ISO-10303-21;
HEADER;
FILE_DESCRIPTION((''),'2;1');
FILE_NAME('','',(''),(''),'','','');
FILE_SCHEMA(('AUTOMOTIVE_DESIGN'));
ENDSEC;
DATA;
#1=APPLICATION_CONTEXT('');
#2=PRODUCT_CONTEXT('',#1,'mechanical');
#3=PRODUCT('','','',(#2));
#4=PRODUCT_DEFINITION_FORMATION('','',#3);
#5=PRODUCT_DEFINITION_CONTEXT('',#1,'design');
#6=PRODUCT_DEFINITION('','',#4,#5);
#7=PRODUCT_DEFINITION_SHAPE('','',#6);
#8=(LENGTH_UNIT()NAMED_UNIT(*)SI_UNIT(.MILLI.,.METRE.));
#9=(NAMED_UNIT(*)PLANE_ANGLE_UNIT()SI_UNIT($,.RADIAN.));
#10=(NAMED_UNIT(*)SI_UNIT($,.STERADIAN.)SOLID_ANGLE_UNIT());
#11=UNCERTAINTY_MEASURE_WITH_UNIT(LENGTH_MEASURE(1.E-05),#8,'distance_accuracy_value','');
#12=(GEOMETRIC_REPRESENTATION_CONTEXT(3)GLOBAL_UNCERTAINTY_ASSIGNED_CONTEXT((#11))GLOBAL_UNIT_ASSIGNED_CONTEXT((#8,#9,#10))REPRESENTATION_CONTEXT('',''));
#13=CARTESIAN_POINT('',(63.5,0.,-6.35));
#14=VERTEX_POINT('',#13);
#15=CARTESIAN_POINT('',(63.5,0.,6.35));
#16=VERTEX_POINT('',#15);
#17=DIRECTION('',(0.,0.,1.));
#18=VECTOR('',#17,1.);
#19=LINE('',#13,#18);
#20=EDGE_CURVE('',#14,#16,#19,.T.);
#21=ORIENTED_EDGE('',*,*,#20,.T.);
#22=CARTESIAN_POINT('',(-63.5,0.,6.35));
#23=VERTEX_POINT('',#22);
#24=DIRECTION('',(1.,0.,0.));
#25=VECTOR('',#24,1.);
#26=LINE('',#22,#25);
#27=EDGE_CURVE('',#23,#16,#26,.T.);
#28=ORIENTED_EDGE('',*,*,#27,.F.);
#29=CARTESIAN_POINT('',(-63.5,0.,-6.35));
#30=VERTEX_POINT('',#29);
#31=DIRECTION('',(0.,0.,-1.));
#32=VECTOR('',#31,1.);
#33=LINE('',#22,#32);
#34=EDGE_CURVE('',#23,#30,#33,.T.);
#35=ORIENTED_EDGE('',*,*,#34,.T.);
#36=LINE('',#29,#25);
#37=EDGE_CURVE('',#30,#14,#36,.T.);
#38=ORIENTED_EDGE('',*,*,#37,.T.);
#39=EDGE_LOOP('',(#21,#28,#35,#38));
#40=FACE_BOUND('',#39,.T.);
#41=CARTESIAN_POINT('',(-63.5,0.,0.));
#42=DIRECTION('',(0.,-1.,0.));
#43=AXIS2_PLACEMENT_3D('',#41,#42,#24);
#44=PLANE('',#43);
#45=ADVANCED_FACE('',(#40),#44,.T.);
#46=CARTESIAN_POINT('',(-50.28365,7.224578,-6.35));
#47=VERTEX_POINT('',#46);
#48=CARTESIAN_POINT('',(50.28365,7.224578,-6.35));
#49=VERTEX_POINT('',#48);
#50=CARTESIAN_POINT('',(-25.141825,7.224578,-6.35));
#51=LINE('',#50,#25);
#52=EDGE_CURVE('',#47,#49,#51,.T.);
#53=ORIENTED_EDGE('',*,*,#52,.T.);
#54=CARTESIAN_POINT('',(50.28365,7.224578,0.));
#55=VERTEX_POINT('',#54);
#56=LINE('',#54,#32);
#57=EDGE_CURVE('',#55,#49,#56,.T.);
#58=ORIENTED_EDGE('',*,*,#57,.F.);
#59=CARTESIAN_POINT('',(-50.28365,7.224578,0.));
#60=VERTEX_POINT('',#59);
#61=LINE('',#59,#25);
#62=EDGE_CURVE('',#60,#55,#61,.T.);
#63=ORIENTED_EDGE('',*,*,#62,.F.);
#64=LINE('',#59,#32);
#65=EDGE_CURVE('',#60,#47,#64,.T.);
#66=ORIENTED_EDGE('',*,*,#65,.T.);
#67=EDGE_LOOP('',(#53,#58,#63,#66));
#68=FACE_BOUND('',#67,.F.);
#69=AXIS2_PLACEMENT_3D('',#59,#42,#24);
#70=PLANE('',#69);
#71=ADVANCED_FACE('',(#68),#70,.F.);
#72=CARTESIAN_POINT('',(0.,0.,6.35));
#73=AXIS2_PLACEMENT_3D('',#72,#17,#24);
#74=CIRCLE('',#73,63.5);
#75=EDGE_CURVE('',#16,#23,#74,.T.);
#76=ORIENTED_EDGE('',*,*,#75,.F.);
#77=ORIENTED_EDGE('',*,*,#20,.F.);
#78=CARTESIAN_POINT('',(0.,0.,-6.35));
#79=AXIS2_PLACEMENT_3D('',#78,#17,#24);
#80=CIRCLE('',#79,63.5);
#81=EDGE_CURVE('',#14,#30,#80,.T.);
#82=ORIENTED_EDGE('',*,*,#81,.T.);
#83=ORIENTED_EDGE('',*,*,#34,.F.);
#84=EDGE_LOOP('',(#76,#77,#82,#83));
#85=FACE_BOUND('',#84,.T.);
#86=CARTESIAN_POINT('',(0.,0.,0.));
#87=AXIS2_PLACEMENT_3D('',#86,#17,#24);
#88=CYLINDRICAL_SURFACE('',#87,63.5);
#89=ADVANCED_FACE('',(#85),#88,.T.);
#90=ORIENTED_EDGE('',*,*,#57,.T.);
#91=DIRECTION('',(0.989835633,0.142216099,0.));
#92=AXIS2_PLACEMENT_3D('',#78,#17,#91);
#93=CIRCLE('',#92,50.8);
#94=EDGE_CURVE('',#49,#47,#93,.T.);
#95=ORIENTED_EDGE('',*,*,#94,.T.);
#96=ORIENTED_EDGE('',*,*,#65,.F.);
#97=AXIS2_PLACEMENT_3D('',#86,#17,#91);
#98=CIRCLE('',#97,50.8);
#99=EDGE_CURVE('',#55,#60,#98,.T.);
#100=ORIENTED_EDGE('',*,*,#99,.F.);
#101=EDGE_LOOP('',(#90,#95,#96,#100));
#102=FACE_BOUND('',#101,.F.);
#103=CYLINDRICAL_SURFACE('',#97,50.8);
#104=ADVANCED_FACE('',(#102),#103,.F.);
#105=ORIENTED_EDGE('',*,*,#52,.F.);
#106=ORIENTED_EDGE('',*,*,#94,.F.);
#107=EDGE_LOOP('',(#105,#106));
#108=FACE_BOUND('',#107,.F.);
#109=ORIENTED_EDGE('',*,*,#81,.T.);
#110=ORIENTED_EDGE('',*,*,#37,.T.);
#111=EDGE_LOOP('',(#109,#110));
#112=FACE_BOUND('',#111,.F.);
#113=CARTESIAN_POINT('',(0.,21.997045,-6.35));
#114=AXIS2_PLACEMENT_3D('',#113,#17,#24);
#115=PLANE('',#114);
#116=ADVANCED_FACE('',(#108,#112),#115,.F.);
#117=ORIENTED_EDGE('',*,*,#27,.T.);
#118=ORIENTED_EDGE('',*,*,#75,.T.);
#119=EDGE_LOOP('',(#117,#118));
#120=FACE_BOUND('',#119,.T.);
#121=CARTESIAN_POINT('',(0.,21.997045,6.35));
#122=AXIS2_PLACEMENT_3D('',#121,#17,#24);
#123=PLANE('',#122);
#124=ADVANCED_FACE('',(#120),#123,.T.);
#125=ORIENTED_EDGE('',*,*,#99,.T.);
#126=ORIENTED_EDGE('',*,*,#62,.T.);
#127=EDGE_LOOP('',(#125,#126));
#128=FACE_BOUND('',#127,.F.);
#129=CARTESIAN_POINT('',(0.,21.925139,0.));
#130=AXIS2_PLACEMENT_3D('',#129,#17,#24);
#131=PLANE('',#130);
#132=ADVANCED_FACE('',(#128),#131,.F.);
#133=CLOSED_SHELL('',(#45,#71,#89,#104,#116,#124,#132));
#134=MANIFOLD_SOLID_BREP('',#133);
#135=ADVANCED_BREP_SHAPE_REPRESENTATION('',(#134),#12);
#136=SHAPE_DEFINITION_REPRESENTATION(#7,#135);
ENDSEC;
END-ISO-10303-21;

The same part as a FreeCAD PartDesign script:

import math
import FreeCAD as App
import Part
import Sketcher
Q = App.Units.Quantity

doc = App.newDocument("Part")
body = doc.addObject("PartDesign::Body", "Body")

# Sketch on XY plane
sketch1 = doc.addObject("Sketcher::SketchObject", "Sketch")
body.addObject(sketch1)
sketch1.AttachmentSupport = (doc.XY_Plane, [""])
sketch1.MapMode = "FlatFace"
sketch1.addGeometry([
    Part.LineSegment(App.Vector(-64, 0, 0), App.Vector(64, 0, 0)),
    Part.ArcOfCircle(Part.Circle(App.Vector(0, 0, 0), App.Vector(0, 0, 1), 64), math.radians(0), math.radians(180)),
], False)
sketch1.addConstraint([
    Sketcher.Constraint("Coincident", 0, 1, 1, 2),
    Sketcher.Constraint("Coincident", 1, 1, 0, 2),
    Sketcher.Constraint("Horizontal", 0),
    Sketcher.Constraint("Coincident", 1, 3, -1, 1),
    Sketcher.Constraint("PointOnObject", 0, 1, -1),
    Sketcher.Constraint("Radius", 1, Q("2.5 in")),
])
pad1 = doc.addObject("PartDesign::Pad", "Pad")
body.addObject(pad1)
pad1.Profile = sketch1
pad1.Length = Q("0.5 in")
pad1.Midplane = True

# Sketch on XY plane
sketch2 = doc.addObject("Sketcher::SketchObject", "Sketch001")
body.addObject(sketch2)
sketch2.AttachmentSupport = (doc.XY_Plane, [""])
sketch2.MapMode = "FlatFace"
sketch2.addGeometry([
    Part.LineSegment(App.Vector(-50, 7, 0), App.Vector(50, 7, 0)),
    Part.ArcOfCircle(Part.Circle(App.Vector(0, 0, 0), App.Vector(0, 0, 1), 51), math.radians(8), math.radians(172)),
], False)
sketch2.addConstraint([
    Sketcher.Constraint("Coincident", 0, 1, 1, 2),
    Sketcher.Constraint("Coincident", 1, 1, 0, 2),
    Sketcher.Constraint("Horizontal", 0),
    Sketcher.Constraint("Coincident", 1, 3, -1, 1),
    Sketcher.Constraint("Radius", 1, Q("2 in")),
    Sketcher.Constraint("DistanceX", 0, 1, 0, 2, 100.5673),
])
pocket1 = doc.addObject("PartDesign::Pocket", "Pocket")
body.addObject(pocket1)
pocket1.Profile = sketch2
pocket1.Length = Q("1 in")

doc.recompute()
